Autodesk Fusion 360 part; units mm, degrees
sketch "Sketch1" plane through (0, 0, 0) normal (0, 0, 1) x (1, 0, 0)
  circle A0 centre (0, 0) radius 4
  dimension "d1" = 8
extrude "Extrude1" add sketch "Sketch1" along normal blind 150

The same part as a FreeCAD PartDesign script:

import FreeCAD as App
import Part
import Sketcher

V = App.Vector

doc = App.newDocument("Part")
body = doc.addObject("PartDesign::Body", "Body")

sketch1 = body.newObject("Sketcher::SketchObject", "Sketch")
sketch1.AttachmentSupport = (doc.getObject("XY_Plane"), [""])
sketch1.MapMode = "FlatFace"
sketch1.addGeometry(Part.Circle(V(0, 0, 0), V(0, 0, 1), 4), False)
sketch1.addConstraint([
    Sketcher.Constraint("Coincident", 0, 3, -1, 1),
    Sketcher.Constraint("Diameter", 0, 8.0),
])
pad1 = body.newObject("PartDesign::Pad", "Pad")
pad1.Profile = sketch1
pad1.Length = 150

doc.recompute()
